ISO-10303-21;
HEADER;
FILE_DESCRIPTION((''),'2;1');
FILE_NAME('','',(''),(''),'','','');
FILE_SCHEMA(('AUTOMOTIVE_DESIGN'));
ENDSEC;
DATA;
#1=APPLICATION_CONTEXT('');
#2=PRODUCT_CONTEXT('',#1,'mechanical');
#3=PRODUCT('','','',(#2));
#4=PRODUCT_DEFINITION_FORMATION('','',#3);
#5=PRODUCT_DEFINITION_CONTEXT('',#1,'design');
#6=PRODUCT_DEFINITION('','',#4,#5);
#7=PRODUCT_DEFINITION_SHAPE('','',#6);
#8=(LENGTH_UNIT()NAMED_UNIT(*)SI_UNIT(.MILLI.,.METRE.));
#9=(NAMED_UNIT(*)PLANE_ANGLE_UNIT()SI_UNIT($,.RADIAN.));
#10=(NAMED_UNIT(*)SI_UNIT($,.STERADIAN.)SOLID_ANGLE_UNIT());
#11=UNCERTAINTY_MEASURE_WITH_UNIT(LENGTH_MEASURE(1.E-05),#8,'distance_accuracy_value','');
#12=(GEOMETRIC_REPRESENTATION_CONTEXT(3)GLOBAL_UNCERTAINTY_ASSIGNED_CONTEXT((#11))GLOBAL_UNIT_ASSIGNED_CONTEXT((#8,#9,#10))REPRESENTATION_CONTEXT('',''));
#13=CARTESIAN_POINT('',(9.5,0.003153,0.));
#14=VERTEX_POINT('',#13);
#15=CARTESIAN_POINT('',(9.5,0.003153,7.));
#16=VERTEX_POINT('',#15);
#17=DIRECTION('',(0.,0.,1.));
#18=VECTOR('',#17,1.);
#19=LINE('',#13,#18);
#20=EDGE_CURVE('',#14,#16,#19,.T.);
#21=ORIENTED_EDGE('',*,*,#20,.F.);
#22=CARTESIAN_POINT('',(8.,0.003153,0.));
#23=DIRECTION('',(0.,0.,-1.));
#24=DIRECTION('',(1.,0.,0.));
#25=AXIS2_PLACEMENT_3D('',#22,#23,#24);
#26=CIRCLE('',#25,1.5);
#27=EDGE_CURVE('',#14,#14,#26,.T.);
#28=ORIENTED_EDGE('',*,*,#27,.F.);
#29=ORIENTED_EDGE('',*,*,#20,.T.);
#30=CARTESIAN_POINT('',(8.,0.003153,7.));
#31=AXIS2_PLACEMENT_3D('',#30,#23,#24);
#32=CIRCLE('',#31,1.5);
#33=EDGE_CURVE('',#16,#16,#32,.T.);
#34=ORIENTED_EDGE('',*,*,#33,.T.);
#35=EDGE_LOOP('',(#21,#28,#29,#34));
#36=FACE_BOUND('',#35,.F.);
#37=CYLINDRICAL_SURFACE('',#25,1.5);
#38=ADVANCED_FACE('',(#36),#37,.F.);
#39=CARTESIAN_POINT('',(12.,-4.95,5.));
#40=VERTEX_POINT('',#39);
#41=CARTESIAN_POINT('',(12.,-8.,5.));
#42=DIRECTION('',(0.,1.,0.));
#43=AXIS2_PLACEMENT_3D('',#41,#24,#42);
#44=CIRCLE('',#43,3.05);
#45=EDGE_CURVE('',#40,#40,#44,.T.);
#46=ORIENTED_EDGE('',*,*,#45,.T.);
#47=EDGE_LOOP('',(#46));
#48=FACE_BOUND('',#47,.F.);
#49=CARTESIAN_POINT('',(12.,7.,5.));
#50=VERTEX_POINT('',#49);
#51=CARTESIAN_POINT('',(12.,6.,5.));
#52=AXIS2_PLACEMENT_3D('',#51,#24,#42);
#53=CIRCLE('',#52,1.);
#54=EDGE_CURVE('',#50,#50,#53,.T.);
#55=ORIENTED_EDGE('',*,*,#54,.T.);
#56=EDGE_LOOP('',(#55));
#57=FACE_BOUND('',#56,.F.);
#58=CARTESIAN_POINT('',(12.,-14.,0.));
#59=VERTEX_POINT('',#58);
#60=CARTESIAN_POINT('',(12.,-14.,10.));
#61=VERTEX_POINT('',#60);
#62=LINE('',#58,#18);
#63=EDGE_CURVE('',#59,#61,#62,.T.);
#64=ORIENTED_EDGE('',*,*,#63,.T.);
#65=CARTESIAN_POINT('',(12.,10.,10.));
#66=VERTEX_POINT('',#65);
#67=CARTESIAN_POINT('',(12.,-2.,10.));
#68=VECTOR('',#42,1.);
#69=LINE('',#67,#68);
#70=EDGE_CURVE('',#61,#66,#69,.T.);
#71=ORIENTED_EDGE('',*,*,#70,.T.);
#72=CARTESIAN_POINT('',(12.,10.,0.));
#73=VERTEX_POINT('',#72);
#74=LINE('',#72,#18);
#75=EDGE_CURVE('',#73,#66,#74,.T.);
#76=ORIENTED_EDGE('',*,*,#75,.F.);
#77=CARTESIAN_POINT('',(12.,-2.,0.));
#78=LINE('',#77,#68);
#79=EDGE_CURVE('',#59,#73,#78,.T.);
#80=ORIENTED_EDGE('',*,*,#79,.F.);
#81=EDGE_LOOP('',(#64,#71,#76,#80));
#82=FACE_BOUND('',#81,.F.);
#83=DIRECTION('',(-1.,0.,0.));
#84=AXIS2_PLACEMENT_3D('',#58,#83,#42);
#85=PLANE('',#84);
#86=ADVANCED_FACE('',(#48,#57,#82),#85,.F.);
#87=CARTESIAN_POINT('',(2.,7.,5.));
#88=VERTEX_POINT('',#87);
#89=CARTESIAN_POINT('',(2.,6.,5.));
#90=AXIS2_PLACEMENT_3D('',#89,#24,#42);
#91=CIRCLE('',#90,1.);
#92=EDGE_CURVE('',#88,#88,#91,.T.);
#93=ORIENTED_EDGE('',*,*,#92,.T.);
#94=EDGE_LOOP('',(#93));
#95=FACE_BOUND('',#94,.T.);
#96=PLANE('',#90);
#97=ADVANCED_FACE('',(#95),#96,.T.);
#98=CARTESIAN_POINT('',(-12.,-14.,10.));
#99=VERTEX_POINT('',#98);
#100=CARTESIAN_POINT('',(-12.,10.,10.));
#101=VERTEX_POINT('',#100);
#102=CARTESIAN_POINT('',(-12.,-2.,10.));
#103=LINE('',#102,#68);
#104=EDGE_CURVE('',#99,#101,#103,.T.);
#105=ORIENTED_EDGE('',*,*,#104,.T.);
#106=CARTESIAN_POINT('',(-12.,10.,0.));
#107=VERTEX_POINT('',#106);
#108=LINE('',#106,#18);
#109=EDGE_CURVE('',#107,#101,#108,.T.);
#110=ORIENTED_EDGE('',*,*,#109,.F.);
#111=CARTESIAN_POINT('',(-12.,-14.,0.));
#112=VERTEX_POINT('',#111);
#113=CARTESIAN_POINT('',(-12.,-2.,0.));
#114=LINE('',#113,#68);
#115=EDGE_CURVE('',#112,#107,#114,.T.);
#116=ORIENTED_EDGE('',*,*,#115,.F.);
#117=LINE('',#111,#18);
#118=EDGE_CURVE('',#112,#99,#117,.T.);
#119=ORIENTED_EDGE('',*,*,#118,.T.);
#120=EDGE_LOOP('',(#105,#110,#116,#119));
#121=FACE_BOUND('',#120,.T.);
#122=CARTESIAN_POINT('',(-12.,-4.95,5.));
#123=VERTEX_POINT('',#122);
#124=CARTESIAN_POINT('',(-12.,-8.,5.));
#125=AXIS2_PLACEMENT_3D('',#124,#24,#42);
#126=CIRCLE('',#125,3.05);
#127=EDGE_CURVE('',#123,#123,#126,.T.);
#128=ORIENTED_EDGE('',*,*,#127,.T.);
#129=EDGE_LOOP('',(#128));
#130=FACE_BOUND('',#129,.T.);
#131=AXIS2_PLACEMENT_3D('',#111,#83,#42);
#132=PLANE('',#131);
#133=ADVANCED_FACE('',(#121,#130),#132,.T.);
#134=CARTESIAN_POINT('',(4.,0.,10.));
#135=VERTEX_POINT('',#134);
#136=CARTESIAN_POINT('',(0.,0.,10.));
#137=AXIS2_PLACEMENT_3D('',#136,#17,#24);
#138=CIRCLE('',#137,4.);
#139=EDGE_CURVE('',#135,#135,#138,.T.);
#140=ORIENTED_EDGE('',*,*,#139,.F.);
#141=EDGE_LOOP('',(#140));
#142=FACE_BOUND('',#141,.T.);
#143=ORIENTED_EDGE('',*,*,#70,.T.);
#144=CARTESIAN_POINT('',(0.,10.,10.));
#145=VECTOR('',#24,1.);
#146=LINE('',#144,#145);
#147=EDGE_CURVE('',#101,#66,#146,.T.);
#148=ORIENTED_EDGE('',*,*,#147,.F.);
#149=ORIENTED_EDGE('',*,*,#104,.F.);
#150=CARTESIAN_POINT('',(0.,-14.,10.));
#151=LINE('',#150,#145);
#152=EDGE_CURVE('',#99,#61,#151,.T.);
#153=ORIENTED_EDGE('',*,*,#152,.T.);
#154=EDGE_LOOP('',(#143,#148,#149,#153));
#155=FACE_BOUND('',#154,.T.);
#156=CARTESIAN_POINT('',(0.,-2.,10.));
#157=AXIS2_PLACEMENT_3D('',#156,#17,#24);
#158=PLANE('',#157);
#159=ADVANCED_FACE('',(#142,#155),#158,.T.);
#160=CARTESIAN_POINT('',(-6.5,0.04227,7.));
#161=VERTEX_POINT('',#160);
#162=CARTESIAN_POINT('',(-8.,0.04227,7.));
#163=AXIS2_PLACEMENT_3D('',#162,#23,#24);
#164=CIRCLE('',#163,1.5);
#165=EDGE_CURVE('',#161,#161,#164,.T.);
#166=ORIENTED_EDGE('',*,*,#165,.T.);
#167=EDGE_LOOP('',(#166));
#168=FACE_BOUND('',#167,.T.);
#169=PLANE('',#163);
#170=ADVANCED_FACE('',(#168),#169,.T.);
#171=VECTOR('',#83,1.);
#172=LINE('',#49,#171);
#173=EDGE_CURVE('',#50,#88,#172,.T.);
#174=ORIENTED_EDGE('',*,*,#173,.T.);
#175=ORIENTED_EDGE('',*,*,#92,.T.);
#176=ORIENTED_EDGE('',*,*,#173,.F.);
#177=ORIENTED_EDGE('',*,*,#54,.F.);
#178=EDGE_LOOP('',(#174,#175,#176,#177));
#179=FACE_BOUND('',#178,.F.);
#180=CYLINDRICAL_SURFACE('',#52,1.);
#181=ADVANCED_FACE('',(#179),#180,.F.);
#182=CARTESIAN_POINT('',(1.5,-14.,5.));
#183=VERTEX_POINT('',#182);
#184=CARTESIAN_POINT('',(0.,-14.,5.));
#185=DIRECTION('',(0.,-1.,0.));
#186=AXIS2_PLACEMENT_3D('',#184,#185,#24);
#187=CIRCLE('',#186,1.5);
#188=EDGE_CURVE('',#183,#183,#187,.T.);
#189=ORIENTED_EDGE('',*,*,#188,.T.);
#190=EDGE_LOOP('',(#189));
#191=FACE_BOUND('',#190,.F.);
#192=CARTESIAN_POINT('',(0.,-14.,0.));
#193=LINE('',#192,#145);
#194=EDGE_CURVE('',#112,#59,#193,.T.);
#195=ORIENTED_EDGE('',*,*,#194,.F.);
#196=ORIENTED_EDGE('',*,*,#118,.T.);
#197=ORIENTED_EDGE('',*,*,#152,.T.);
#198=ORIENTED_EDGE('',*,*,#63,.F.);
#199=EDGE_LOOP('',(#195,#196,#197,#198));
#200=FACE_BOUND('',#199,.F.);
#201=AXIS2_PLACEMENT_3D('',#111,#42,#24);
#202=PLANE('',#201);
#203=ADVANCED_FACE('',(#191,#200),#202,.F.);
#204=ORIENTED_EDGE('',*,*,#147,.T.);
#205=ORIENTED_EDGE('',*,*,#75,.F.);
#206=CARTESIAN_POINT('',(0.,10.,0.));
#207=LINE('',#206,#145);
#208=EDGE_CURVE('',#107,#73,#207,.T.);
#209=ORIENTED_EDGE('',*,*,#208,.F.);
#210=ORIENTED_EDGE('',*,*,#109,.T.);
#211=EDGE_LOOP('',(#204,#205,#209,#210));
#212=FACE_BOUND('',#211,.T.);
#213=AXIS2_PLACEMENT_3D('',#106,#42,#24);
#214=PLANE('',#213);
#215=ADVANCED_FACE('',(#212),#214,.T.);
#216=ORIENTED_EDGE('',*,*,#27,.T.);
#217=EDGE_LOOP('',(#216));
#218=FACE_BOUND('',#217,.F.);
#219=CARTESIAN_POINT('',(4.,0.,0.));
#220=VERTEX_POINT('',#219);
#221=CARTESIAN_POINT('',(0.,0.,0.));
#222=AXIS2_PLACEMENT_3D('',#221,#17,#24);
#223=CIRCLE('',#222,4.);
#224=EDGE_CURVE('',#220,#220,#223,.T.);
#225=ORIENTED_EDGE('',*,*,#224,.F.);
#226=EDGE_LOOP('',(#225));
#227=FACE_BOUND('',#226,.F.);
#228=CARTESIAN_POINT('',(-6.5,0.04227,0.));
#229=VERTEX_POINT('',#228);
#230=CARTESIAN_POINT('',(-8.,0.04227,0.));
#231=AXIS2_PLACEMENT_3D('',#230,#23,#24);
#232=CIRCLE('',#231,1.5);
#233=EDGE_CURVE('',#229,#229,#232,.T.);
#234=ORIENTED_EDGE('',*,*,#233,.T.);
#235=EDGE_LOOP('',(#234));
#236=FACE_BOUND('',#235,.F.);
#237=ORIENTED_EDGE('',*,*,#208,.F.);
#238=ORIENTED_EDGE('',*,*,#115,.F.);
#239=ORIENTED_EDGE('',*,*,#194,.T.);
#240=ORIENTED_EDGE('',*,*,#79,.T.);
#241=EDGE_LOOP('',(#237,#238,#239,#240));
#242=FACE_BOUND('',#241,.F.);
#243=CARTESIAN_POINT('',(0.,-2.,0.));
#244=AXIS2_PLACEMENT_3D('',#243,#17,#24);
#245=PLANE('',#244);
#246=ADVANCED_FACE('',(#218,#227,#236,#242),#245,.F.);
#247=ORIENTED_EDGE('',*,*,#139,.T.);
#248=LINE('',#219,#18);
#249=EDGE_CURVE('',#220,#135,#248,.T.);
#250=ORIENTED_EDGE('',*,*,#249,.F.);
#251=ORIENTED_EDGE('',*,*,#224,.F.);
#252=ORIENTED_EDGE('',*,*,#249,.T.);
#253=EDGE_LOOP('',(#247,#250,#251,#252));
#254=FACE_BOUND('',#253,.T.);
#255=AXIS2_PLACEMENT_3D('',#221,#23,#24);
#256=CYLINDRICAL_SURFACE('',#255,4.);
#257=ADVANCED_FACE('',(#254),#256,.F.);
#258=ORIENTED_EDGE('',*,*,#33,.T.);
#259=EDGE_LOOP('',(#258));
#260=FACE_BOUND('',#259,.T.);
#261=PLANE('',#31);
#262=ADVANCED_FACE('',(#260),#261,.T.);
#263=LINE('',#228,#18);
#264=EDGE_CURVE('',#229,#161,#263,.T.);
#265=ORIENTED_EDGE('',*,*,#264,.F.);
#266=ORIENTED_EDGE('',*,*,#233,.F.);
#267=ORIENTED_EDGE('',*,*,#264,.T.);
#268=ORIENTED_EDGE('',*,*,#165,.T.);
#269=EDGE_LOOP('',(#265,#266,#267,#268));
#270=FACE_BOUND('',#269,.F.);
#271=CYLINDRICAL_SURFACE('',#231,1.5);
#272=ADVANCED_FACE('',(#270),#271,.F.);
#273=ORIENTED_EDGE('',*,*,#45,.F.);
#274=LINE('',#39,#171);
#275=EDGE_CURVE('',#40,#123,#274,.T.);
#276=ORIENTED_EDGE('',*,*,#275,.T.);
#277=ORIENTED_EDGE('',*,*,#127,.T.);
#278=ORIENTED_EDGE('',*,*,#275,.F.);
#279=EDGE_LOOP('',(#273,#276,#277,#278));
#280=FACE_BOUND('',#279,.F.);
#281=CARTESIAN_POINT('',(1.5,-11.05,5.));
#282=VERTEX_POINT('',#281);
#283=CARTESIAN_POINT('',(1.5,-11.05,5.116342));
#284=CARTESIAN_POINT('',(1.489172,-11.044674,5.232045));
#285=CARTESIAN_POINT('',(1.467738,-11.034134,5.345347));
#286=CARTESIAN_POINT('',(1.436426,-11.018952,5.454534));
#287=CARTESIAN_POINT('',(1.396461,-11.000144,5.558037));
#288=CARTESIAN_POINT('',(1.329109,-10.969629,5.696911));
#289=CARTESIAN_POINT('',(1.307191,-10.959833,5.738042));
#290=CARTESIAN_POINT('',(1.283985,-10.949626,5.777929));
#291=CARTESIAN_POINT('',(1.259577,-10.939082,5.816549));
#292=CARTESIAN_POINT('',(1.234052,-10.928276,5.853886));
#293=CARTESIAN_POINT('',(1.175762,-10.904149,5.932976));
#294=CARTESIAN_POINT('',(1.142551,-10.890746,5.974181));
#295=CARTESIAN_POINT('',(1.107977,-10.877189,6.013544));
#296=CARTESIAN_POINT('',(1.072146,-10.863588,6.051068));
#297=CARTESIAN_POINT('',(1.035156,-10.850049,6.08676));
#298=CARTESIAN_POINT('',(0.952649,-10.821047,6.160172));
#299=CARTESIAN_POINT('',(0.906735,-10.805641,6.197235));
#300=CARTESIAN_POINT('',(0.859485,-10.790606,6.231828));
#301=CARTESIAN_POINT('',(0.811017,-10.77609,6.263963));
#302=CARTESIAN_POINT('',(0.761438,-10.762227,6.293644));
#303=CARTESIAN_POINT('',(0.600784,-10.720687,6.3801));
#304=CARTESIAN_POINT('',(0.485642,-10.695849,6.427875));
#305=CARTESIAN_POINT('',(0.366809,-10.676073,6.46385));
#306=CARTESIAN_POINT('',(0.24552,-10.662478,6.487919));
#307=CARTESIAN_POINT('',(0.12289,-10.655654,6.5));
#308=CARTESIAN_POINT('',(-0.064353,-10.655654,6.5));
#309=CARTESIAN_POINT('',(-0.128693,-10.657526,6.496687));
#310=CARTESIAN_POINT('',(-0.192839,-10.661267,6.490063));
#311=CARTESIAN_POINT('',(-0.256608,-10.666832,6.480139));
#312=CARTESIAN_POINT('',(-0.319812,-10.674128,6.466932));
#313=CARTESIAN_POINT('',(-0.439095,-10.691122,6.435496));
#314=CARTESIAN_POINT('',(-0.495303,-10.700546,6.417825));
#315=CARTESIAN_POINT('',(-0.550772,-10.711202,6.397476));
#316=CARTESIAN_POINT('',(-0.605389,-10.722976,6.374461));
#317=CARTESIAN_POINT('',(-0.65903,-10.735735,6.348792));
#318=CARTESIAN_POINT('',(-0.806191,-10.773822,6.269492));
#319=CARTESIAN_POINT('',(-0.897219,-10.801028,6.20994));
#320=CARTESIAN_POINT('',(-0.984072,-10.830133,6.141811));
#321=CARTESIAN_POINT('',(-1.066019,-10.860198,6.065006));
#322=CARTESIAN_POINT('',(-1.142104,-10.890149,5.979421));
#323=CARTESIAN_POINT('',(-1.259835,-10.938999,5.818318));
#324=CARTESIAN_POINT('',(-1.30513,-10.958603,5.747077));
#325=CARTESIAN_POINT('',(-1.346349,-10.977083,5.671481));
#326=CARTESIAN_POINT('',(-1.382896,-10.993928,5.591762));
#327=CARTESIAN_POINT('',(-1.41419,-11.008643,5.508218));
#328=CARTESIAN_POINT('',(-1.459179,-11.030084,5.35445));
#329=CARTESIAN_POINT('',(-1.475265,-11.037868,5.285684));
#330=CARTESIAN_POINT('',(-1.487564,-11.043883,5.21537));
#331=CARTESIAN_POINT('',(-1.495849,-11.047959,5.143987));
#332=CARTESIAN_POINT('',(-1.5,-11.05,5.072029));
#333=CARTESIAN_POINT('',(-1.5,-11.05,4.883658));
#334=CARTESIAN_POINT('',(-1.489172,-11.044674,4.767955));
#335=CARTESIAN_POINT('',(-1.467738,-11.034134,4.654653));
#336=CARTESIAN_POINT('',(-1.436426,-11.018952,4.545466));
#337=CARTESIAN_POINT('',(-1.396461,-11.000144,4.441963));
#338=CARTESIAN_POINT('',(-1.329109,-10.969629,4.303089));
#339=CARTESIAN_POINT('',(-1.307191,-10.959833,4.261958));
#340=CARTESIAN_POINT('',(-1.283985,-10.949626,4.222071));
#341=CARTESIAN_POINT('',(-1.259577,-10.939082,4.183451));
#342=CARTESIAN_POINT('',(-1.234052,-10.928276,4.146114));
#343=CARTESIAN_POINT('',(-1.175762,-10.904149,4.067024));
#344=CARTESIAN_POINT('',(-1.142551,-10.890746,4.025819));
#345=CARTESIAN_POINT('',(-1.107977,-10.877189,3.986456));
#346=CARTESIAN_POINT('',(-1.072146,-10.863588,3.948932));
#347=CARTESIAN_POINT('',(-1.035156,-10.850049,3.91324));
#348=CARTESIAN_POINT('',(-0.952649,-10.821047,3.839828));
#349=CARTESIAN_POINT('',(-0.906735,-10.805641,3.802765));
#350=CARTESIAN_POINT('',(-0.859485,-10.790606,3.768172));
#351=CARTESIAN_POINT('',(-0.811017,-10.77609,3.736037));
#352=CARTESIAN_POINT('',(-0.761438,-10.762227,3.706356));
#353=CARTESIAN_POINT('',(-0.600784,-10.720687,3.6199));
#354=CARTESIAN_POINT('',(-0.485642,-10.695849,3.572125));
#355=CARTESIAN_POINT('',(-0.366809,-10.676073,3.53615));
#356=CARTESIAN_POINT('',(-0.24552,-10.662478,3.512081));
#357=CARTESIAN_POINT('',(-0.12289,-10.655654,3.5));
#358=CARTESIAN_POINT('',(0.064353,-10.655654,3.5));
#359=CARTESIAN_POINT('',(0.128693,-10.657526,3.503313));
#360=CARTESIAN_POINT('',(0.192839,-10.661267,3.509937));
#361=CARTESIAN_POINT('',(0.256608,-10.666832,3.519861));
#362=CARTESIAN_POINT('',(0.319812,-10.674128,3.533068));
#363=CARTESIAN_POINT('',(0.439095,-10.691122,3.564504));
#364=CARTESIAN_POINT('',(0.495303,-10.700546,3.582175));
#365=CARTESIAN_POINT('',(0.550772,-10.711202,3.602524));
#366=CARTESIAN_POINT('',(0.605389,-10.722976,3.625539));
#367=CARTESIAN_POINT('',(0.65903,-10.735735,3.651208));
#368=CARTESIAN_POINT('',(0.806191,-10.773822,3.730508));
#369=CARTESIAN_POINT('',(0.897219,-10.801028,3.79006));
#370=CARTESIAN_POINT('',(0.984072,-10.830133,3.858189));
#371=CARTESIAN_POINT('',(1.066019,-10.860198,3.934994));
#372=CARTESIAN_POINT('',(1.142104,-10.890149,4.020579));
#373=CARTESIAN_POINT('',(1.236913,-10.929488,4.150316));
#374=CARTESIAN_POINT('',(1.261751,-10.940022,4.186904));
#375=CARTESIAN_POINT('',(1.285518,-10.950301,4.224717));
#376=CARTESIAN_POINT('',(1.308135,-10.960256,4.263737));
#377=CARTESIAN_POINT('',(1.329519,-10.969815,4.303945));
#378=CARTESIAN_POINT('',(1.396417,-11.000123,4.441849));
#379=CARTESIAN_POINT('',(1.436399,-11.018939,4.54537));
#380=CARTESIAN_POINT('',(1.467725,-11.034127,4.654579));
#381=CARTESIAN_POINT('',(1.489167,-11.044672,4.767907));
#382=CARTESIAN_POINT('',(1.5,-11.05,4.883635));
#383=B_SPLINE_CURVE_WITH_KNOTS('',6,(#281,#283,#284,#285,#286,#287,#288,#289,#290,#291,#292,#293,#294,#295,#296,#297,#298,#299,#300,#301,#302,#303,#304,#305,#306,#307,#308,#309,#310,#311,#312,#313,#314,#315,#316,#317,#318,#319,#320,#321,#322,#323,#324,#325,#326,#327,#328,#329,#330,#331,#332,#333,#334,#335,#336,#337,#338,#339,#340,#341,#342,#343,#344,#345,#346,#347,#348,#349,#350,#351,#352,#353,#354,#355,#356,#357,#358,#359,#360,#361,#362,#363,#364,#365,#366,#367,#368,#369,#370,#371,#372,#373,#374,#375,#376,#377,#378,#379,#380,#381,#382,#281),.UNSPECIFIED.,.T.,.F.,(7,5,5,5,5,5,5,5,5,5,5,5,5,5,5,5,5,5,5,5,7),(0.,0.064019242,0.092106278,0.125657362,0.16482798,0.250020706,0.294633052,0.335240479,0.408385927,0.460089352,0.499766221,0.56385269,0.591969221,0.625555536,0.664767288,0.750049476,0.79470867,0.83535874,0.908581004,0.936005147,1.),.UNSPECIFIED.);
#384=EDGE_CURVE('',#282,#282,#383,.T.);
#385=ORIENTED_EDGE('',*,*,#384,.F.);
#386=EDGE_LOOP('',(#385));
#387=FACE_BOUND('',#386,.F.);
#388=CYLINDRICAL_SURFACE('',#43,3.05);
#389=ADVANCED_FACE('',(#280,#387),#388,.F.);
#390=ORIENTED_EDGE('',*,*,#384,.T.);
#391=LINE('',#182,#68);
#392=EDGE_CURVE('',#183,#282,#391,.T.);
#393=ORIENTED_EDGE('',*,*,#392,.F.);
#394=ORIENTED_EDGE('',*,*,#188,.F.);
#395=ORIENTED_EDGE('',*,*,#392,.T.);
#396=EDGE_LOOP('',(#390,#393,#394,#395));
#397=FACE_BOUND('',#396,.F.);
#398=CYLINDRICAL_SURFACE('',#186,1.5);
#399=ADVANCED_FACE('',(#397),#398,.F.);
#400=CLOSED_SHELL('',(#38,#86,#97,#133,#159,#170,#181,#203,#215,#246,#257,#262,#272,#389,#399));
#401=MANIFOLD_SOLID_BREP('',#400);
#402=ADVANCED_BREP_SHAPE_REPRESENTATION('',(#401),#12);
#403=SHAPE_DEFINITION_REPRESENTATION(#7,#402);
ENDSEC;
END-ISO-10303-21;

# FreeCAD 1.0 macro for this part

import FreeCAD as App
import Part
import Sketcher
from FreeCAD import Vector

doc = App.newDocument("Part")
body = doc.addObject("PartDesign::Body", "Body")

sketch1 = doc.addObject("Sketcher::SketchObject", "Sketch")
body.addObject(sketch1)
sketch1.AttachmentSupport = (doc.XY_Plane, [""])
sketch1.MapMode = "FlatFace"
sketch1.addGeometry([
    Part.LineSegment(Vector(-12, 10, 0), Vector(-12, -14, 0)),
    Part.LineSegment(Vector(-12, -14, 0), Vector(12, -14, 0)),
    Part.LineSegment(Vector(12, -14, 0), Vector(12, 10, 0)),
    Part.LineSegment(Vector(12, 10, 0), Vector(-12, 10, 0)),
    Part.Circle(Vector(0, 0, 0), Vector(0, 0, 1), 4),
], False)
sketch1.addConstraint([
    Sketcher.Constraint("Coincident", 0, 2, 1, 1),
    Sketcher.Constraint("Coincident", 1, 2, 2, 1),
    Sketcher.Constraint("Coincident", 2, 2, 3, 1),
    Sketcher.Constraint("Coincident", 3, 2, 0, 1),
    Sketcher.Constraint("Vertical", 0),
    Sketcher.Constraint("Horizontal", 1),
    Sketcher.Constraint("Vertical", 2),
    Sketcher.Constraint("Horizontal", 3),
    Sketcher.Constraint("Coincident", 4, 3, -1, 1),
    Sketcher.Constraint("Equal", 3, 0),
    Sketcher.Constraint("Diameter", 4, 8.0),
    Sketcher.Constraint("DistanceX", 1, 1, 1, 2, 24.0),
    Sketcher.Constraint("DistanceX", 0, 2, -1, 1, 12.0),
    Sketcher.Constraint("DistanceY", 0, 2, -1, 1, 14.0),
])
pad1 = doc.addObject("PartDesign::Pad", "Pad")
body.addObject(pad1)
pad1.Profile = sketch1
pad1.Length = 10

sketch2 = doc.addObject("Sketcher::SketchObject", "Sketch001")
body.addObject(sketch2)
sketch2.AttachmentSupport = (doc.YZ_Plane, [""])
sketch2.MapMode = "FlatFace"
sketch2.AttachmentOffset = App.Placement(Vector(0, 0, 12), App.Rotation())
sketch2.addGeometry(Part.Circle(Vector(-8, 5, 0), Vector(0, 0, 1), 3), False)
sketch2.addConstraint([
    Sketcher.Constraint("Diameter", 0, 6.1),
    Sketcher.Constraint("DistanceX", 0, 3, -1, 1, 8.0),
    Sketcher.Constraint("DistanceY", -1, 1, 0, 3, 5.0),
])
pocket1 = doc.addObject("PartDesign::Pocket", "Pocket")
body.addObject(pocket1)
pocket1.Profile = sketch2
pocket1.Type = "ThroughAll"

sketch3 = doc.addObject("Sketcher::SketchObject", "Sketch002")
body.addObject(sketch3)
sketch3.AttachmentSupport = (doc.YZ_Plane, [""])
sketch3.MapMode = "FlatFace"
sketch3.AttachmentOffset = App.Placement(Vector(0, 0, 12), App.Rotation())
sketch3.addGeometry(Part.Circle(Vector(6, 5, 0), Vector(0, 0, 1), 1), False)
sketch3.addConstraint([
    Sketcher.Constraint("Diameter", 0, 2.0),
    Sketcher.Constraint("DistanceX", -1, 1, 0, 3, 6.0),
    Sketcher.Constraint("DistanceY", -1, 1, 0, 3, 5.0),
])
pocket2 = doc.addObject("PartDesign::Pocket", "Pocket001")
body.addObject(pocket2)
pocket2.Profile = sketch3
pocket2.Length = 10

sketch4 = doc.addObject("Sketcher::SketchObject", "Sketch003")
body.addObject(sketch4)
sketch4.AttachmentSupport = (doc.XY_Plane, [""])
sketch4.MapMode = "FlatFace"
sketch4.addGeometry([
    Part.Circle(Vector(8, 0, 0), Vector(0, 0, 1), 1.5),
    Part.Circle(Vector(-8, 0, 0), Vector(0, 0, 1), 1.5),
], False)
sketch4.addConstraint([
    Sketcher.Constraint("Equal", 0, 1),
    Sketcher.Constraint("Diameter", 0, 3.0),
    Sketcher.Constraint("DistanceX", -1, 1, 0, 3, 8.0),
    Sketcher.Constraint("DistanceX", 1, 3, -1, 1, 8.0),
    Sketcher.Constraint("DistanceY", -1, 1, 1, 3, 0.04227),
    Sketcher.Constraint("DistanceY", -1, 1, 0, 3, 0.003153),
])
pocket3 = doc.addObject("PartDesign::Pocket", "Pocket002")
body.addObject(pocket3)
pocket3.Profile = sketch4
pocket3.Length = 7
pocket3.Reversed = True

sketch5 = doc.addObject("Sketcher::SketchObject", "Sketch004")
body.addObject(sketch5)
sketch5.AttachmentSupport = (doc.XZ_Plane, [""])
sketch5.MapMode = "FlatFace"
sketch5.AttachmentOffset = App.Placement(Vector(0, 0, 14), App.Rotation())
sketch5.addGeometry(Part.Circle(Vector(0, 5, 0), Vector(0, 0, 1), 1.5), False)
sketch5.addConstraint([
    Sketcher.Constraint("PointOnObject", 0, 3, -2),
    Sketcher.Constraint("Diameter", 0, 3.0),
    Sketcher.Constraint("DistanceY", -1, 1, 0, 3, 5.0),
])
pocket4 = doc.addObject("PartDesign::Pocket", "Pocket003")
body.addObject(pocket4)
pocket4.Profile = sketch5
pocket4.Length = 5

doc.recompute()
